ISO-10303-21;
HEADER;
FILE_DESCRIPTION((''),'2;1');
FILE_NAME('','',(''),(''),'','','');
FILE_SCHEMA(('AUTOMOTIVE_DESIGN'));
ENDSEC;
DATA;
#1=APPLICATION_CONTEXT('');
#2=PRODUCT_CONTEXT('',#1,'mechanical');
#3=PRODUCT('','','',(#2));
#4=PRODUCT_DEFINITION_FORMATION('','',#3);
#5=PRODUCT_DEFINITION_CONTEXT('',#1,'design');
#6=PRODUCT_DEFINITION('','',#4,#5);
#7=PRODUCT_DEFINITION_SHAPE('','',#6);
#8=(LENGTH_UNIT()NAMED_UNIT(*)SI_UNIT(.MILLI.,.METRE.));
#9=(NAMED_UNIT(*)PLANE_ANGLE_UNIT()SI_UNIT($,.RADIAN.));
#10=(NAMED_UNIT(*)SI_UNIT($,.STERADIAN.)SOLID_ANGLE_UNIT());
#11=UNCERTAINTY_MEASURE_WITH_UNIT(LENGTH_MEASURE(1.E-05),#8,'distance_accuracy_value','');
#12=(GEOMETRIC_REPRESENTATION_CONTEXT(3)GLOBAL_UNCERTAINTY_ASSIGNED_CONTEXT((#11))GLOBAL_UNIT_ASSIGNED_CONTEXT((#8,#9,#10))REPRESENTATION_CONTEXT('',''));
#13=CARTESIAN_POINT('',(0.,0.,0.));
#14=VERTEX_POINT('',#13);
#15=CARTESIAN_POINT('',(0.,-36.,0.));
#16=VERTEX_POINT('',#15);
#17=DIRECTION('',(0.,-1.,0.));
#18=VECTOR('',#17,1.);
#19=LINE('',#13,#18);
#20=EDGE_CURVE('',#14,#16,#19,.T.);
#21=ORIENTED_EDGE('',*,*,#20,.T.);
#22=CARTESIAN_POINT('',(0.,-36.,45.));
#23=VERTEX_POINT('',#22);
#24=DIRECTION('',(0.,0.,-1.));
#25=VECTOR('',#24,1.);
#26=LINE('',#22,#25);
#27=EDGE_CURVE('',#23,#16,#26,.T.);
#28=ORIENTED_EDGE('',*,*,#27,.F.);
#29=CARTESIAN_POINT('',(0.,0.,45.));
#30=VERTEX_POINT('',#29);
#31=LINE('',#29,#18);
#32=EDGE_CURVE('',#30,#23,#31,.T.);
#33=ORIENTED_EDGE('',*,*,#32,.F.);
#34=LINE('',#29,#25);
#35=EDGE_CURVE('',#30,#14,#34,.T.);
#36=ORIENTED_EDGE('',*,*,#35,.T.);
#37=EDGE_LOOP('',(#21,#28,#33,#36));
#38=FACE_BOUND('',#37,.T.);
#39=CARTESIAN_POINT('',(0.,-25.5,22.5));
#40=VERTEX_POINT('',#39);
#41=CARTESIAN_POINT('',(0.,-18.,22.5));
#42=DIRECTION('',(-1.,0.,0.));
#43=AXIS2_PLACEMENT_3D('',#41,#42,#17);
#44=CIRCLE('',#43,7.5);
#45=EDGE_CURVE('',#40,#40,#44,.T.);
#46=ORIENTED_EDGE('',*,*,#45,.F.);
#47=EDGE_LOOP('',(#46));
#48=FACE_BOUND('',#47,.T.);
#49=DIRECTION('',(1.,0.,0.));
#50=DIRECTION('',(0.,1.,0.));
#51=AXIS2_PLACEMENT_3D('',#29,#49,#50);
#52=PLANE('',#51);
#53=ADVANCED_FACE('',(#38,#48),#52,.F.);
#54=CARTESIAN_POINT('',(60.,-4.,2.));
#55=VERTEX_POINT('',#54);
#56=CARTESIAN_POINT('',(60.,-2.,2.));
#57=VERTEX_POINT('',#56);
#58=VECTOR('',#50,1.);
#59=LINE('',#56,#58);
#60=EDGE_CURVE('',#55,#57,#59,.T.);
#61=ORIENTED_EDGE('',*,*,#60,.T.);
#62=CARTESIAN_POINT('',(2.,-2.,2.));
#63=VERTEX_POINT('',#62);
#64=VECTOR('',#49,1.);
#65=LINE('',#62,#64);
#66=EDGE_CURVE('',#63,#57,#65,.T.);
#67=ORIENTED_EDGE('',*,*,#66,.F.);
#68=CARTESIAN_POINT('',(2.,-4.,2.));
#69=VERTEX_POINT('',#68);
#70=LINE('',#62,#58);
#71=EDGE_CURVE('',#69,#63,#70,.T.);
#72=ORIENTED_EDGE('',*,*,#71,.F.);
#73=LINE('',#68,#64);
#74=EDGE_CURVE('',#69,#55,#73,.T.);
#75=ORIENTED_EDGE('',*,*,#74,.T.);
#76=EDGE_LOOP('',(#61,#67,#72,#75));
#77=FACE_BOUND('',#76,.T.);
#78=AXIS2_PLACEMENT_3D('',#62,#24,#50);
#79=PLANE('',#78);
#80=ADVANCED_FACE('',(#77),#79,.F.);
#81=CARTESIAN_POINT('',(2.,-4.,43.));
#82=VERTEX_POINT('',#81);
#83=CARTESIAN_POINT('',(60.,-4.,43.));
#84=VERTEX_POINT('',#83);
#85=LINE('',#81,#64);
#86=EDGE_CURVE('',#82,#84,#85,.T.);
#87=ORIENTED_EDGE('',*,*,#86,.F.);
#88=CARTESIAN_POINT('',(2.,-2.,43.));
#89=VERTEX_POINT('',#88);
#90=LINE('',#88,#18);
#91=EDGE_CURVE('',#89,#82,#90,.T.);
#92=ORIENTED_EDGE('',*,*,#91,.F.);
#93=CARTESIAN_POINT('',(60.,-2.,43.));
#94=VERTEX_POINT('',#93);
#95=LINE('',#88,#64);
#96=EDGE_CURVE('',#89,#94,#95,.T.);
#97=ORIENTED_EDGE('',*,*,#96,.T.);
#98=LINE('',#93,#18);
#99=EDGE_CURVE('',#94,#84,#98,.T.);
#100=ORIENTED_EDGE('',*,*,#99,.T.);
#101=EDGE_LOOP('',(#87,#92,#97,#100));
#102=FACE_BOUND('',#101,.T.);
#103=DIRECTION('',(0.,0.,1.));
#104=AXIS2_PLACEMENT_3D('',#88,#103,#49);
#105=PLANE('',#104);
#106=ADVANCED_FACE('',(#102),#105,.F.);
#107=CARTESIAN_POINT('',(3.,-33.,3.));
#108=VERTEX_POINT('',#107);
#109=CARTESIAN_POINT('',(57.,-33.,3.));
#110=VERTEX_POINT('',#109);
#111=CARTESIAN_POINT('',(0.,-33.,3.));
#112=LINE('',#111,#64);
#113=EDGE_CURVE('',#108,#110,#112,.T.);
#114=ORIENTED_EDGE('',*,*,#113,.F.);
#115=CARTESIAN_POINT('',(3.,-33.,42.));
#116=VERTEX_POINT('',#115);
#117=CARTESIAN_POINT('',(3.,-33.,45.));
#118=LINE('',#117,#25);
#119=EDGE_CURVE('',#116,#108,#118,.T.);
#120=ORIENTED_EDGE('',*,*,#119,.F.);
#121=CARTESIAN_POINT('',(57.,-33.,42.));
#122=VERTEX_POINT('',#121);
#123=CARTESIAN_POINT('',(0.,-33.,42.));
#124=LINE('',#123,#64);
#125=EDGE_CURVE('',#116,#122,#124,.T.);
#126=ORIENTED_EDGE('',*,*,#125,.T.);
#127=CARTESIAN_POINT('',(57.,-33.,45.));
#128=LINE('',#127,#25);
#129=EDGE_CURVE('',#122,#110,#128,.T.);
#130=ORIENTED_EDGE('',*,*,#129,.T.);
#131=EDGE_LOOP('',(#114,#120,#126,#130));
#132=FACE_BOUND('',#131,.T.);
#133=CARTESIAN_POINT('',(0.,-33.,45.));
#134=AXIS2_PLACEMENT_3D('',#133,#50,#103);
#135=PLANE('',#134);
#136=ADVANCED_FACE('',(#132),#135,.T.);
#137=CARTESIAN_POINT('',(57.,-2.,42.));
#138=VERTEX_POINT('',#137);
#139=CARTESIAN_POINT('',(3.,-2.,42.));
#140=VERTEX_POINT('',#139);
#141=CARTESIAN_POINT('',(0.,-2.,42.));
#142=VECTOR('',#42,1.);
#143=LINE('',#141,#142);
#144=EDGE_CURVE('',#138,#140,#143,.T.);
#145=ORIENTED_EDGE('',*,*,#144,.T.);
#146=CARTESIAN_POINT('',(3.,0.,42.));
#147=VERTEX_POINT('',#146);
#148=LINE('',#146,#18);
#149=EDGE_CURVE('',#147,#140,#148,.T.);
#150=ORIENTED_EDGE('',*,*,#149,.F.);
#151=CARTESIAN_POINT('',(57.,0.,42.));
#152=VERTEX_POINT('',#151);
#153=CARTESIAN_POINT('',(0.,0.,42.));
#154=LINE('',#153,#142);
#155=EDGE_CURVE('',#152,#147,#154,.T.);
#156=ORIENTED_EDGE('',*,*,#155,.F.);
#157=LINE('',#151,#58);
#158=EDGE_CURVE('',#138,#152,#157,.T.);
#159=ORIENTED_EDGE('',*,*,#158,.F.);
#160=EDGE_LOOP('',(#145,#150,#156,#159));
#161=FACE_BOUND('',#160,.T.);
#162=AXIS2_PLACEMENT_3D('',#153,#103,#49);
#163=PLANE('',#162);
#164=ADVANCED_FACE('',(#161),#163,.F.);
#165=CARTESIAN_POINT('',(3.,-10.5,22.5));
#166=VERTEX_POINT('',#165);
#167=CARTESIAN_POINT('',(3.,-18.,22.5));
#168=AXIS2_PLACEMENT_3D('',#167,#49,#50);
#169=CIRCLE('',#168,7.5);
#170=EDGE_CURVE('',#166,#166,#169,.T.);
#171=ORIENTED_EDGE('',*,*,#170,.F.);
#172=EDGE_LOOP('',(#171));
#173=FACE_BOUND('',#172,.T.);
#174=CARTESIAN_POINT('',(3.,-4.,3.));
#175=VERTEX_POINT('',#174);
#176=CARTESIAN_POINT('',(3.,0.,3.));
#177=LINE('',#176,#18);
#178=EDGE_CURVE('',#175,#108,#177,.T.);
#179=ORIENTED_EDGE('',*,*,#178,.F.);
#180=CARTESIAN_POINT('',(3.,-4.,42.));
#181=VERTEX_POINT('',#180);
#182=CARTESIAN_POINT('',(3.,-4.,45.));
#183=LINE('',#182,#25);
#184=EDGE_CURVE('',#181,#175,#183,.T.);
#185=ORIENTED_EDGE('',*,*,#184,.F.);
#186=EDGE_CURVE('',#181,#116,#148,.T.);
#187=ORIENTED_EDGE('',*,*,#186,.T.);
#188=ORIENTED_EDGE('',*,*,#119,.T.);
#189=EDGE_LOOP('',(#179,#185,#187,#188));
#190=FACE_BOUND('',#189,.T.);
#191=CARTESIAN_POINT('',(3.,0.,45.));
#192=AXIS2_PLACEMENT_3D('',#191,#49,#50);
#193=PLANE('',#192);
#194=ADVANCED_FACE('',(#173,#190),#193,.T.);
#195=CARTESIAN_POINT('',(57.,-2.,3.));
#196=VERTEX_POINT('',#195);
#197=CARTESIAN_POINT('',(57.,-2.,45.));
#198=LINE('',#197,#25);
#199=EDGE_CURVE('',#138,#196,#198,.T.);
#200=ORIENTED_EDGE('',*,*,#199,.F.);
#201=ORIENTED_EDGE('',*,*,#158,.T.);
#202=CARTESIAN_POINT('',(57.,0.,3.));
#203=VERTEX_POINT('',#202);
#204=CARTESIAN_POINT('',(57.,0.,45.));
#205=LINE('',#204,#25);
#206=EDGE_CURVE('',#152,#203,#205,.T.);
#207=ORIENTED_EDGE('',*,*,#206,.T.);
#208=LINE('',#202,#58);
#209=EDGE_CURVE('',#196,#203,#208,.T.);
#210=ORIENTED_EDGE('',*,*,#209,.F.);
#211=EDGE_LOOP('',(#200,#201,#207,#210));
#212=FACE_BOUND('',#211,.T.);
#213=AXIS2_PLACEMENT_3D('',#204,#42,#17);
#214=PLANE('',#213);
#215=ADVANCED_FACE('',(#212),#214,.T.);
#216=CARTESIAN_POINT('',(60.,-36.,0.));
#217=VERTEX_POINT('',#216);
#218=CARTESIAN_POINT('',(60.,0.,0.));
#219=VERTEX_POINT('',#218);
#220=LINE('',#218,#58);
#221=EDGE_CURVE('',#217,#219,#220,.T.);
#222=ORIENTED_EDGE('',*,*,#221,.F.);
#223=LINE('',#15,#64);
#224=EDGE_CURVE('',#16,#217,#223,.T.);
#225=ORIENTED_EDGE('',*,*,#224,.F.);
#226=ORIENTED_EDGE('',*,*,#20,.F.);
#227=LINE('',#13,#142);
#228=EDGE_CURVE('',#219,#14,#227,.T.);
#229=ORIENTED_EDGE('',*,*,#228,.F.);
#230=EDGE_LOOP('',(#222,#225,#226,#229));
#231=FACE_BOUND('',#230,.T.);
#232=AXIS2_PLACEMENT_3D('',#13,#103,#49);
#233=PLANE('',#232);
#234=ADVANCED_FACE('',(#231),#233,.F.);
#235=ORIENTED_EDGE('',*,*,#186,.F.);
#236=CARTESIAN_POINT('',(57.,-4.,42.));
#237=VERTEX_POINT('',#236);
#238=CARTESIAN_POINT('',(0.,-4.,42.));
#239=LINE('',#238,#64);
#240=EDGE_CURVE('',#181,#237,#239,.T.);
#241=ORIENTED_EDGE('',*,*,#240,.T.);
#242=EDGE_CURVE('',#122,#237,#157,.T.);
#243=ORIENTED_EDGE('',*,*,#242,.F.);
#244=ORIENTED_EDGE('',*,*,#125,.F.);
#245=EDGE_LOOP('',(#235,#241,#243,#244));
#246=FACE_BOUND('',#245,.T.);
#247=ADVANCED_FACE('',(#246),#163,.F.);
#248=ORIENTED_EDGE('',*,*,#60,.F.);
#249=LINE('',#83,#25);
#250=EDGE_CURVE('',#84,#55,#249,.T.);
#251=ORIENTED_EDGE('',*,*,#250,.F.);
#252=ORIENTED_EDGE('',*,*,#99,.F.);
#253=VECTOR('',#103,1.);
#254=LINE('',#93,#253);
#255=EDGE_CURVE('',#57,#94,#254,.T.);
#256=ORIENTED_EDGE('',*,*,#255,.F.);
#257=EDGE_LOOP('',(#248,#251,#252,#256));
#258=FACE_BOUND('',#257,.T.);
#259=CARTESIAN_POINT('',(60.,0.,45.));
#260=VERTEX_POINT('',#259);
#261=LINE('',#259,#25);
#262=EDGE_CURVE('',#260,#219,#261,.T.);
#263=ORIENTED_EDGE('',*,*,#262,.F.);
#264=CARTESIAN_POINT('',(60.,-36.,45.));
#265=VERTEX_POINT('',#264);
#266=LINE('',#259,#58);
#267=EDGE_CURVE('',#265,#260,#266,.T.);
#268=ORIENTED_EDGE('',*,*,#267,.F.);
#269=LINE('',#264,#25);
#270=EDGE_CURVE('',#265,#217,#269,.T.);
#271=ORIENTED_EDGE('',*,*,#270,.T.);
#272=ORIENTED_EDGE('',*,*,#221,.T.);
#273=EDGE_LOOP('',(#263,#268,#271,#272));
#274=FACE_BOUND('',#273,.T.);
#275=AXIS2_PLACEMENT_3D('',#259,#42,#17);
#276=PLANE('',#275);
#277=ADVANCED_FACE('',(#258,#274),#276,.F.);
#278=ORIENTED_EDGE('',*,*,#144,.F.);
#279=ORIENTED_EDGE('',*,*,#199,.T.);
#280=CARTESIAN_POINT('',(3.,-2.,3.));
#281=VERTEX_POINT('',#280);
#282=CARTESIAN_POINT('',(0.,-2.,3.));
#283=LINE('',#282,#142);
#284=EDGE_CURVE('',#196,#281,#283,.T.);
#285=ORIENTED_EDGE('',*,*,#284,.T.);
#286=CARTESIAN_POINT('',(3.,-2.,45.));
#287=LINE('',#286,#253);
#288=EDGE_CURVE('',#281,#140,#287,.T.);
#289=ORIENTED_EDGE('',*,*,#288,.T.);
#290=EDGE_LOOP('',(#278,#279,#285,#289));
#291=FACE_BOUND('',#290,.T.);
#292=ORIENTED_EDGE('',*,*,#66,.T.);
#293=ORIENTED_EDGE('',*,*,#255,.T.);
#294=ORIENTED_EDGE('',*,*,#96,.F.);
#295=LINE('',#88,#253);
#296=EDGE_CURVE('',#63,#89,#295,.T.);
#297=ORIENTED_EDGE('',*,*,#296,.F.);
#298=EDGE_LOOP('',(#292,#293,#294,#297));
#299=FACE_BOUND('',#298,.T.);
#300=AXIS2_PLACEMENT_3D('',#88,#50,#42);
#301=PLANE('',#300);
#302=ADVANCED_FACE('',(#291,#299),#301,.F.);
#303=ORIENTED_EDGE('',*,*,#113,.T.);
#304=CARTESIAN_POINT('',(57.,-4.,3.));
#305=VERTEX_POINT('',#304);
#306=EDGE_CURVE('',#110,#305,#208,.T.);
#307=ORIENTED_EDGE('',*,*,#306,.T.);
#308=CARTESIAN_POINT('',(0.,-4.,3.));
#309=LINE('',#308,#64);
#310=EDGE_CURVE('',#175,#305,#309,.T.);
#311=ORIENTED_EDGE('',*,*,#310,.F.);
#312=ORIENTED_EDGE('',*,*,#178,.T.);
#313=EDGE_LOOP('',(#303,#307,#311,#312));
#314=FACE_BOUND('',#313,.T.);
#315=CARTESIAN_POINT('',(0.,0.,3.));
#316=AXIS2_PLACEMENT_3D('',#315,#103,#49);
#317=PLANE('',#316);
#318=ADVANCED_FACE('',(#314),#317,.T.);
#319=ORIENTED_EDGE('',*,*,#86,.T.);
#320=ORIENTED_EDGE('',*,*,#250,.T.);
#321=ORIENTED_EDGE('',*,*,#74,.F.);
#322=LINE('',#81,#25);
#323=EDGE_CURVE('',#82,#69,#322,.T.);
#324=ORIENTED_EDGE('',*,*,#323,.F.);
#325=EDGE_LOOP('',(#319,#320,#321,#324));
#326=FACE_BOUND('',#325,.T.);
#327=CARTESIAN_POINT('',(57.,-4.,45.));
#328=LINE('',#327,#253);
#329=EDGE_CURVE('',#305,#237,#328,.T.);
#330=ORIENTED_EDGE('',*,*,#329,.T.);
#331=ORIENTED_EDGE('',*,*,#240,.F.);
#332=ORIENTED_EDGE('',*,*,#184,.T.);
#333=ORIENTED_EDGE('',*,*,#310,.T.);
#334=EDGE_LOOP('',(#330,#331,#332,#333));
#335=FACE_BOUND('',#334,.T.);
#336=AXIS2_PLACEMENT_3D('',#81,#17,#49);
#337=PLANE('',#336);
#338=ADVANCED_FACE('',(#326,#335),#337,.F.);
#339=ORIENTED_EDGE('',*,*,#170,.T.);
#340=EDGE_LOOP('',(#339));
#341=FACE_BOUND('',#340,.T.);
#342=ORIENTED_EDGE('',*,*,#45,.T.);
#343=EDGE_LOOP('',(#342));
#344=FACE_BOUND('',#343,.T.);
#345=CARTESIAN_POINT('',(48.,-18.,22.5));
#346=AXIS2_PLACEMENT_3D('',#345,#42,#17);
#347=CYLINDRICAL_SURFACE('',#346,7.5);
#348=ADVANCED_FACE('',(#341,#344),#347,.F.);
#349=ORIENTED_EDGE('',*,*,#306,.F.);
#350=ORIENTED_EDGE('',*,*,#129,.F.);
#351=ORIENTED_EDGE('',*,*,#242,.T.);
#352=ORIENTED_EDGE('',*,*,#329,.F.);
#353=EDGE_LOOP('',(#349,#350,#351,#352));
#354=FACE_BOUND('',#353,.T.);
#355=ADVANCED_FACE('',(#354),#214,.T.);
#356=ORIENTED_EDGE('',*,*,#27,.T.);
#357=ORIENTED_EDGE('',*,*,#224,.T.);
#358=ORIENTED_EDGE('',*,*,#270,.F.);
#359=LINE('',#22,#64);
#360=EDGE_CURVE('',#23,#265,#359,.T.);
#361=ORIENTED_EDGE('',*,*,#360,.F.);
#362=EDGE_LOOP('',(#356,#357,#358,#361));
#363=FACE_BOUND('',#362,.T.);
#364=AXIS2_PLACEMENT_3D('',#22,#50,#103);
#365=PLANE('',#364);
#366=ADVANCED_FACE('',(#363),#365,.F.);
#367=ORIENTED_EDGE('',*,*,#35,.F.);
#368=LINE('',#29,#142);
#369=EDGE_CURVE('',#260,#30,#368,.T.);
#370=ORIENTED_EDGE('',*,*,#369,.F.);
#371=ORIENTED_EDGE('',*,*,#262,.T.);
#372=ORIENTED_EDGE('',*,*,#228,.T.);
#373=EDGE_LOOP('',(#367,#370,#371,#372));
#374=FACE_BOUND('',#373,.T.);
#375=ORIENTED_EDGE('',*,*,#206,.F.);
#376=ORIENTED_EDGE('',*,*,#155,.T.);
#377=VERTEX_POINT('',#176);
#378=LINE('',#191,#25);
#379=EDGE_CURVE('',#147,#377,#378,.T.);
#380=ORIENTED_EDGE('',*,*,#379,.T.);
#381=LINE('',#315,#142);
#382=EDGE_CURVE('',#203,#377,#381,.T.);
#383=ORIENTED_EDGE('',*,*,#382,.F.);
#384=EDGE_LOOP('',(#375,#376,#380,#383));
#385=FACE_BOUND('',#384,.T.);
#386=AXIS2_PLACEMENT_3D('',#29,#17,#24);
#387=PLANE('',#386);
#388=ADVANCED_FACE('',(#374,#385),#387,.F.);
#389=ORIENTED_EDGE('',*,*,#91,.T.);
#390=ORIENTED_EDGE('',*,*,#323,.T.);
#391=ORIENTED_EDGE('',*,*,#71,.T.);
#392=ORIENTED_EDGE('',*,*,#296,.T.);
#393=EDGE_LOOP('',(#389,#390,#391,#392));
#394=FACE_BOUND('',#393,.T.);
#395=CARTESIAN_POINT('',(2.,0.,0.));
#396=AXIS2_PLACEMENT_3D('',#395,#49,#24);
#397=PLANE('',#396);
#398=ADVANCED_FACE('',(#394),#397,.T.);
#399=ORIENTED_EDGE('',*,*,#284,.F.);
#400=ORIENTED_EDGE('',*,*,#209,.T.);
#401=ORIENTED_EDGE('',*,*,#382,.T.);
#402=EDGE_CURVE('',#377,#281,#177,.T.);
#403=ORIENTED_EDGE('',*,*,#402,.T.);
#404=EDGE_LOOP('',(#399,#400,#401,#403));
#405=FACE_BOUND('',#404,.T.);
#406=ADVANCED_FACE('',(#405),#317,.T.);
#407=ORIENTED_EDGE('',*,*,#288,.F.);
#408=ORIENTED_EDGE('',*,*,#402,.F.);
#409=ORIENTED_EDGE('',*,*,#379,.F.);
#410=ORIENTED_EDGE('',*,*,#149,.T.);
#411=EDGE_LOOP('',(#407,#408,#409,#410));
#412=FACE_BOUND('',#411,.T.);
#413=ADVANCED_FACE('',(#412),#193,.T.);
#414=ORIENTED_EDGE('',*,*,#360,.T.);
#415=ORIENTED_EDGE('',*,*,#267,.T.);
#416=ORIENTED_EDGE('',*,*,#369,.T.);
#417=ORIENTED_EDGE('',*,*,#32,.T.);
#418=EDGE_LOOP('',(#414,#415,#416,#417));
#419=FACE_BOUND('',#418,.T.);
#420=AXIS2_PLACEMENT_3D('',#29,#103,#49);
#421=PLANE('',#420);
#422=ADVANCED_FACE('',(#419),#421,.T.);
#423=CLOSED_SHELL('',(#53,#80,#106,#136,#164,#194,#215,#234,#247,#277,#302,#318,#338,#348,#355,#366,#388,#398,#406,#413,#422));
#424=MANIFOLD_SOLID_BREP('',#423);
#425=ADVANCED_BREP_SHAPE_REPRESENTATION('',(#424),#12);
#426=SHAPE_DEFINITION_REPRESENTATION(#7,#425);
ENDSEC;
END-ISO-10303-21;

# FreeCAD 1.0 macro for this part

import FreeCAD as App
import Part
import Sketcher
Q = App.Units.Quantity


def faces_at(feature, points):
    """Names of the faces that lie closest to the given points."""
    faces = feature.Shape.Faces
    near = lambda p: min(range(len(faces)), key=lambda i: faces[i].distToShape(Part.Vertex(*p))[0])
    return sorted({f"Face{near(p) + 1}" for p in points})


def add_polygon(sketch, points):
    """Adds a closed chain of lines whose ends are joined by coincident constraints."""
    first, n = sketch.GeometryCount, len(points)
    for a, b in zip(points, points[1:] + points[:1]):
        sketch.addGeometry(Part.LineSegment(App.Vector(*a, 0), App.Vector(*b, 0)), False)
    for i in range(n):
        sketch.addConstraint(Sketcher.Constraint("Coincident", first + i, 2, first + (i + 1) % n, 1))

doc = App.newDocument("Part")
body = doc.addObject("PartDesign::Body", "Body")

# Sketch on XY plane
sketch1 = doc.addObject("Sketcher::SketchObject", "Sketch")
body.addObject(sketch1)
sketch1.AttachmentSupport = (doc.XY_Plane, [""])
sketch1.MapMode = "FlatFace"
add_polygon(sketch1, [(0, 0), (0, -36), (60, -36), (60, 0)])  # lines 0-3
sketch1.addConstraint([
    Sketcher.Constraint("Vertical", 0),
    Sketcher.Constraint("Horizontal", 1),
    Sketcher.Constraint("Vertical", 2),
    Sketcher.Constraint("Horizontal", 3),
    Sketcher.Constraint("Coincident", 3, 2, -1, 1),
    Sketcher.Constraint("DistanceX", 1, 1, 1, 2, Q("60 mm")),
    Sketcher.Constraint("DistanceY", 0, 2, 0, 1, Q("36 mm")),
])
pad1 = doc.addObject("PartDesign::Pad", "Pad")
body.addObject(pad1)
pad1.Profile = sketch1
pad1.Length = 45
doc.recompute()

thickness = doc.addObject("PartDesign::Thickness", "Thickness")
body.addObject(thickness)
thickness.Base = (pad1, faces_at(pad1, [(30, 0, 22.5)]))
thickness.Value = 3
thickness.Reversed = True
thickness.Join = "Intersection"

# Sketch on YZ plane
sketch2 = doc.addObject("Sketcher::SketchObject", "Sketch001")
body.addObject(sketch2)
sketch2.AttachmentSupport = (doc.YZ_Plane, [""])
sketch2.MapMode = "FlatFace"
sketch2.AttachmentOffset = App.Placement(App.Vector(0, 0, 60), App.Rotation())
add_polygon(sketch2, [(-2, 43), (-4, 43), (-4, 2), (-2, 2)])  # lines 0-3
sketch2.addConstraint([
    Sketcher.Constraint("Horizontal", 0),
    Sketcher.Constraint("Vertical", 1),
    Sketcher.Constraint("Horizontal", 2),
    Sketcher.Constraint("Vertical", 3),
    Sketcher.Constraint("DistanceX", 0, 2, 0, 1, Q("2 mm")),
    Sketcher.Constraint("DistanceY", 1, 2, 1, 1, Q("41 mm")),
    Sketcher.Constraint("DistanceX", 0, 2, -1, 1, Q("4 mm")),
    Sketcher.Constraint("DistanceY", -1, 1, 0, 2, Q("43 mm")),
])
pocket1 = doc.addObject("PartDesign::Pocket", "Pocket")
body.addObject(pocket1)
pocket1.Profile = sketch2
pocket1.Length = 58

# Sketch on YZ plane
sketch3 = doc.addObject("Sketcher::SketchObject", "Sketch002")
body.addObject(sketch3)
sketch3.AttachmentSupport = (doc.YZ_Plane, [""])
sketch3.MapMode = "FlatFace"
sketch3.addGeometry(Part.Circle(App.Vector(-18, 22, 0), App.Vector(0, 0, 1), 8), False)
sketch3.addConstraint([
    Sketcher.Constraint("Diameter", 0, Q("15 mm")),
    Sketcher.Constraint("DistanceX", 0, 3, -1, 1, Q("18 mm")),
    Sketcher.Constraint("DistanceY", -1, 1, 0, 3, Q("22.5 mm")),
])
pocket2 = doc.addObject("PartDesign::Pocket", "Pocket001")
body.addObject(pocket2)
pocket2.Profile = sketch3
pocket2.Length = 48
pocket2.Reversed = True

doc.recompute()
